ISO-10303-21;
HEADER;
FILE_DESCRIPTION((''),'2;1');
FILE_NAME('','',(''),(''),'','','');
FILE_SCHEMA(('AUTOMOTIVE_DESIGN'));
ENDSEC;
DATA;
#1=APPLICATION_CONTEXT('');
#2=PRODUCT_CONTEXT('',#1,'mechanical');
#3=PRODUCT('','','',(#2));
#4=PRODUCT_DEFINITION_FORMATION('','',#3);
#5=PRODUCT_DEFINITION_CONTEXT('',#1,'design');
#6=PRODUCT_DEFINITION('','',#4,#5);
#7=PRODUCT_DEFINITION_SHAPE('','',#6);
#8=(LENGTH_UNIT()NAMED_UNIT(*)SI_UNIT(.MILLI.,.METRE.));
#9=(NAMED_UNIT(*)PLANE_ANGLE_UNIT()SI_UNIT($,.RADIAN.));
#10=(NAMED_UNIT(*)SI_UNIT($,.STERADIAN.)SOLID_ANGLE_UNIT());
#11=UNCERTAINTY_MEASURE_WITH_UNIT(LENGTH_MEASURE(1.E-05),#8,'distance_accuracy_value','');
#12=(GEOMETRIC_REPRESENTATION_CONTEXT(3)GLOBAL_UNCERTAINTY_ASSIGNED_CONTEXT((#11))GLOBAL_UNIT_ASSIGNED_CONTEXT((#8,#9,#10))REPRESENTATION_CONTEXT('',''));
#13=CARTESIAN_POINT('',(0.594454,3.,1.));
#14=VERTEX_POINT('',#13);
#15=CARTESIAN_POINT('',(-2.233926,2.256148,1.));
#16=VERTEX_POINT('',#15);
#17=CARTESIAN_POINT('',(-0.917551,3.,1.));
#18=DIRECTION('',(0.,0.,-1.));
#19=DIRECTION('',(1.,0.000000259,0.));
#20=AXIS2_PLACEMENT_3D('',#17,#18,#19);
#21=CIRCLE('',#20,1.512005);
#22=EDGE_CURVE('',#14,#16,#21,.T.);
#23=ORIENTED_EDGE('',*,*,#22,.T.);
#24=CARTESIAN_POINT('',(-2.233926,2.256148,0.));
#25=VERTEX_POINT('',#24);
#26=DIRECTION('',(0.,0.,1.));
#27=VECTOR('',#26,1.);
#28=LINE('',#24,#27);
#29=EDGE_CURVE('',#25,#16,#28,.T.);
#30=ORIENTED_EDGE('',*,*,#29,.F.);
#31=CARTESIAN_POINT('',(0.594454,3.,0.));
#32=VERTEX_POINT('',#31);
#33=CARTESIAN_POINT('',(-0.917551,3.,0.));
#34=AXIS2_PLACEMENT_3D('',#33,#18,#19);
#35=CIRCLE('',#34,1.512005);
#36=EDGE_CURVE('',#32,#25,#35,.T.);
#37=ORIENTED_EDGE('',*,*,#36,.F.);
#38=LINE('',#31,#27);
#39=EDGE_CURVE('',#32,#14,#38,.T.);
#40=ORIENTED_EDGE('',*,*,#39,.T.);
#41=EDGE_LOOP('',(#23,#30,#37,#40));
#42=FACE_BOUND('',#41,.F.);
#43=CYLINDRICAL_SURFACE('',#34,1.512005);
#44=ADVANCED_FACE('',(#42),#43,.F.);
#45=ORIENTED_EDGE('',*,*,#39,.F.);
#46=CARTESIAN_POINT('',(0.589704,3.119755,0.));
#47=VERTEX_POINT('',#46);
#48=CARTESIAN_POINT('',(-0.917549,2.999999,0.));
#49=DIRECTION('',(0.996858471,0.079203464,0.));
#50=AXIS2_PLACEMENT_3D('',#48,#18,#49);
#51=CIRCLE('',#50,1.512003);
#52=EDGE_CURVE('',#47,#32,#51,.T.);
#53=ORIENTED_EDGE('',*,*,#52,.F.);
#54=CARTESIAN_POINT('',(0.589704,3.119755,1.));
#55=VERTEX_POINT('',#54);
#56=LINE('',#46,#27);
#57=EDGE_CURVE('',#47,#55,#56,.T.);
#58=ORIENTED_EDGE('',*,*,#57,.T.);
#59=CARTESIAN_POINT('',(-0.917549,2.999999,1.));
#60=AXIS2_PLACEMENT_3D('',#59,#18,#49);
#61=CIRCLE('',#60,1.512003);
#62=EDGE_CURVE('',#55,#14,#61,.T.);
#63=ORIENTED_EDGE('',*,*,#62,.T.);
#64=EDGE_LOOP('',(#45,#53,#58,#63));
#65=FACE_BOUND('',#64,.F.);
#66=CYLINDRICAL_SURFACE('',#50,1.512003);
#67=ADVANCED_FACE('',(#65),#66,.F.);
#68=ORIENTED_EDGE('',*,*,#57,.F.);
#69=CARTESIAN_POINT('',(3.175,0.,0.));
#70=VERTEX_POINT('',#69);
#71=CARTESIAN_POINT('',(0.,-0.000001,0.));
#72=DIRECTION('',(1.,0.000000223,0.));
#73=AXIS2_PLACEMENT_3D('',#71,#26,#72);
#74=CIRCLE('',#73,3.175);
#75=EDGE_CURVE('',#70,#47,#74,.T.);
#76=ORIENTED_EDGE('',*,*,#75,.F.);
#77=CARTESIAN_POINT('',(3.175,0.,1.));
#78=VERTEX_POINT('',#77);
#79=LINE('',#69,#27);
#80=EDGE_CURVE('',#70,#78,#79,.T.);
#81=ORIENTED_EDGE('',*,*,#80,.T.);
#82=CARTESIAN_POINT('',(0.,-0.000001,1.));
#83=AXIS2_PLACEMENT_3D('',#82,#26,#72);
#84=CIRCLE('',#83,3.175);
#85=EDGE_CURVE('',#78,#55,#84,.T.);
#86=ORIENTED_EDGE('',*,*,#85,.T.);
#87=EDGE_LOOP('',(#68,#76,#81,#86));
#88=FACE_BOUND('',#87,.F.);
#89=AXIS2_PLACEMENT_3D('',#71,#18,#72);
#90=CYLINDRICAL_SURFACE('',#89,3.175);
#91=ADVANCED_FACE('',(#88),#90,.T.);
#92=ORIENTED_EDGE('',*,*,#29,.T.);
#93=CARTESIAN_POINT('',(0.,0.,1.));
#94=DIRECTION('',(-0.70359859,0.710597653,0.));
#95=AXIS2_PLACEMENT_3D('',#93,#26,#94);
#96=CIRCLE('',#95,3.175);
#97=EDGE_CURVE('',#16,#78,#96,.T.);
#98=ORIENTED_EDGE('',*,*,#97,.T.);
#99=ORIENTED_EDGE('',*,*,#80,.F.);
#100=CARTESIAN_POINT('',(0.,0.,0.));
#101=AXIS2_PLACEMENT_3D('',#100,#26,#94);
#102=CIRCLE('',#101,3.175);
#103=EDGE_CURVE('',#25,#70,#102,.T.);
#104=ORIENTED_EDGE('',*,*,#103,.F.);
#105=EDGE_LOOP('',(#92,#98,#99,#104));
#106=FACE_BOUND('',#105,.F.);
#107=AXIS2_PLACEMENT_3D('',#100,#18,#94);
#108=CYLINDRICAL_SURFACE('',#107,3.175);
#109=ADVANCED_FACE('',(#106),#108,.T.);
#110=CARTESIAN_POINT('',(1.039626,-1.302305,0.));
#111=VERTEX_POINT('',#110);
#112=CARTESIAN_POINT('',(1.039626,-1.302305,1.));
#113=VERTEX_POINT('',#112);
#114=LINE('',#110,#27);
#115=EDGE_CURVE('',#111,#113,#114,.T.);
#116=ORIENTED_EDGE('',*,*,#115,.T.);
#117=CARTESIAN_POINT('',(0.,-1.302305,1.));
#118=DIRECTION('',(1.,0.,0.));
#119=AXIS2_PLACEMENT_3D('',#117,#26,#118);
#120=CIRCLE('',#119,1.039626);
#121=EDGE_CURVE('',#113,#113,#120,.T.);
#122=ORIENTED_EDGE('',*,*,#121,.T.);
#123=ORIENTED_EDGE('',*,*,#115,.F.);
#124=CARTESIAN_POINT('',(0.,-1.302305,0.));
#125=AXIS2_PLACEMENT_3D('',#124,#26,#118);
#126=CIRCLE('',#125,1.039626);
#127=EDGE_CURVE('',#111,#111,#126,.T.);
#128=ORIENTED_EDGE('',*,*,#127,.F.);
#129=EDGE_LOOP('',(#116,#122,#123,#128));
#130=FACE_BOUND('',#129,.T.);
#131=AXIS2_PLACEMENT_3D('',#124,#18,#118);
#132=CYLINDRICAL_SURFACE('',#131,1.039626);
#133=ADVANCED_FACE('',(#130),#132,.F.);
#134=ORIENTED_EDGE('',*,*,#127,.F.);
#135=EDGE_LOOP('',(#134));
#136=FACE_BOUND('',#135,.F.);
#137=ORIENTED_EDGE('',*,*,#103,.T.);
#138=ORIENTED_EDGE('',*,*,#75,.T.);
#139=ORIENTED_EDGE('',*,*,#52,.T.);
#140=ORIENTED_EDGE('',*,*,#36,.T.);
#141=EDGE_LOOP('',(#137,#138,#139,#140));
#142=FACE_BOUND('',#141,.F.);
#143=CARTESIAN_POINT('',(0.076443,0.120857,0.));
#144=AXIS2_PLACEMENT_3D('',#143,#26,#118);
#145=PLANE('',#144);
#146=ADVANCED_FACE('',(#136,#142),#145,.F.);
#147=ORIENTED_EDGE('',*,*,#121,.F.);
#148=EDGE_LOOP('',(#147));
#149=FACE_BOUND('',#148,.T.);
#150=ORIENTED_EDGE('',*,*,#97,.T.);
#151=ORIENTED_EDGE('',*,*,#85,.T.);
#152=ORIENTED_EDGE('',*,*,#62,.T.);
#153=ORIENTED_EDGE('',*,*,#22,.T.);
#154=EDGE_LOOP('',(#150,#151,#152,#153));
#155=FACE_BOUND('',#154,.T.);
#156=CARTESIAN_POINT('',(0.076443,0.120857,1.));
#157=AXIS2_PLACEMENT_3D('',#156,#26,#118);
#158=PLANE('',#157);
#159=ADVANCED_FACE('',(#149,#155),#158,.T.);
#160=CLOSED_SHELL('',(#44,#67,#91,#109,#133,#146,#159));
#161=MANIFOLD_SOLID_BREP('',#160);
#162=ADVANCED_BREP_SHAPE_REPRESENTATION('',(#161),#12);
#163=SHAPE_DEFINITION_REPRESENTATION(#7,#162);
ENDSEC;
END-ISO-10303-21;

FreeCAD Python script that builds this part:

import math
import FreeCAD as App
import Part
import Sketcher

V = App.Vector
Q = App.Units.Quantity

doc = App.newDocument("Part")
params = doc.addObject("Spreadsheet::Sheet", "Params")
for row, (alias, value) in enumerate([
    ("pad1_length", "1 mm"),
], start=1):
    params.set(f"A{row}", alias)
    params.set(f"B{row}", "=" + value)
    params.setAlias(f"B{row}", alias)

body = doc.addObject("PartDesign::Body", "Body")

# Sketch on XY plane
sketch1 = body.newObject("Sketcher::SketchObject", "Sketch")
sketch1.AttachmentSupport = (doc.getObject("XY_Plane"), [""])
sketch1.MapMode = "FlatFace"
sketch1.addGeometry([
    Part.ArcOfCircle(Part.Circle(V(0, 0, 0), V(0, 0, 1), 3.175), math.radians(134.716437), math.radians(359.999995)),  # 0
    Part.ArcOfCircle(Part.Circle(V(0, -0.000001, 0), V(0, 0, 1), 3.175), math.radians(0.000013), math.radians(79.296093)),  # 1
    Part.ArcOfCircle(Part.Circle(V(-0.917549, 2.999999, 0), V(0, 0, 1), 1.512003), math.radians(0.000032), math.radians(4.542782)),  # 2
    Part.ArcOfCircle(Part.Circle(V(-0.917551, 3, 0), V(0, 0, 1), 1.512005), math.radians(-150.530264), math.radians(0.000015)),  # 3
    Part.Circle(V(0, -1.302305, 0), V(0, 0, 1), 1.039626),  # 4
], False)
sketch1.addConstraint([
    Sketcher.Constraint("Tangent", 0, 2, 1, 1),
    Sketcher.Constraint("Coincident", 1, 2, 2, 2),
    Sketcher.Constraint("Tangent", 2, 1, 3, 2),
    Sketcher.Constraint("Coincident", 3, 1, 0, 1),
    Sketcher.Constraint("Coincident", 0, 3, -1, 1),
    Sketcher.Constraint("Equal", 0, 1),
    Sketcher.Constraint("PointOnObject", 4, 3, -2),
    Sketcher.Constraint("PointOnObject", 0, 2, -1),
    Sketcher.Constraint("Horizontal", 3, 3, 2, 1),
    Sketcher.Constraint("DistanceY", -1, 1, 2, 3, Q("2.999999 mm")),
    Sketcher.Constraint("Radius", 0, Q("3.175 mm")),
    Sketcher.Constraint("Diameter", 4, Q("2.079252 mm")),
    Sketcher.Constraint("Radius", 2, Q("1.512003 mm")),
    Sketcher.Constraint("Radius", 3, Q("1.512005 mm")),
    Sketcher.Constraint("DistanceX", 2, 3, -1, 1, Q("0.917549 mm")),
    Sketcher.Constraint("DistanceY", 4, 3, -1, 1, Q("1.302305 mm")),
])
pad1 = body.newObject("PartDesign::Pad", "Pad")
pad1.Profile = sketch1
pad1.setExpression("Length", "Params.pad1_length")

doc.recompute()
